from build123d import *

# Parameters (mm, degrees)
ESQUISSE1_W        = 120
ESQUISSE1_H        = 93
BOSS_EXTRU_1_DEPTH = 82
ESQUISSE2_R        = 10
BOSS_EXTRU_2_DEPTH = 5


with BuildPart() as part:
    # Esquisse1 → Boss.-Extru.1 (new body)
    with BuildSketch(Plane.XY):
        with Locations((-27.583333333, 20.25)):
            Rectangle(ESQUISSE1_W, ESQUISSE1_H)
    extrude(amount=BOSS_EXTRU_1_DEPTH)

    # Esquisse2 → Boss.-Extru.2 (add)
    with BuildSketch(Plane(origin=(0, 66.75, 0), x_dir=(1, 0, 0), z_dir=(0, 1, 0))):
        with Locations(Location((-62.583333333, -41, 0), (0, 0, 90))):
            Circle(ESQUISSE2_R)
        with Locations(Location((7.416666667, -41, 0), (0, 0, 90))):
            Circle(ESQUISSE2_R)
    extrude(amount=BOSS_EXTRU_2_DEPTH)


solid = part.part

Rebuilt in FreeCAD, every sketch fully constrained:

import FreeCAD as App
import Part
import Sketcher

V = App.Vector

doc = App.newDocument("Part")
body = doc.addObject("PartDesign::Body", "Body")

sketch1 = body.newObject("Sketcher::SketchObject", "Sketch")
sketch1.AttachmentSupport = (doc.getObject("XY_Plane"), [""])
sketch1.MapMode = "FlatFace"
sketch1.addGeometry(Part.LineSegment(V(-87.583333, 66.75, 0), V(-87.583333, -26.25, 0)), False)
sketch1.addGeometry(Part.LineSegment(V(-87.583333, -26.25, 0), V(32.416667, -26.25, 0)), False)
sketch1.addGeometry(Part.LineSegment(V(32.416667, -26.25, 0), V(32.416667, 66.75, 0)), False)
sketch1.addGeometry(Part.LineSegment(V(32.416667, 66.75, 0), V(-87.583333, 66.75, 0)), False)
sketch1.addConstraint(Sketcher.Constraint("Coincident", 0, 2, 1, 1))
sketch1.addConstraint(Sketcher.Constraint("Coincident", 1, 2, 2, 1))
sketch1.addConstraint(Sketcher.Constraint("Coincident", 2, 2, 3, 1))
sketch1.addConstraint(Sketcher.Constraint("Coincident", 3, 2, 0, 1))
sketch1.addConstraint(Sketcher.Constraint("Vertical", 0))
sketch1.addConstraint(Sketcher.Constraint("Horizontal", 1))
sketch1.addConstraint(Sketcher.Constraint("Vertical", 2))
sketch1.addConstraint(Sketcher.Constraint("Horizontal", 3))
sketch1.addConstraint(Sketcher.Constraint("DistanceX", 1, 1, 1, 2, 120.0))
sketch1.addConstraint(Sketcher.Constraint("DistanceY", 0, 2, 0, 1, 93.0))
sketch1.addConstraint(Sketcher.Constraint("DistanceY", 0, 2, -1, 1, 26.25))
sketch1.addConstraint(Sketcher.Constraint("DistanceX", 0, 2, -1, 1, 87.583333))
pad1 = body.newObject("PartDesign::Pad", "Pad")
pad1.Profile = sketch1
pad1.Length = 82

sketch2 = body.newObject("Sketcher::SketchObject", "Sketch001")
sketch2.AttachmentSupport = (doc.getObject("XZ_Plane"), [""])
sketch2.MapMode = "FlatFace"
sketch2.AttachmentOffset = App.Placement(V(0, 0, -66.75), App.Rotation())
sketch2.addGeometry(Part.Circle(V(-62.583333, 41, 0), V(0, 0, 1), 10), False)
sketch2.addGeometry(Part.Circle(V(7.416667, 41, 0), V(0, 0, 1), 10), False)
sketch2.addConstraint(Sketcher.Constraint("Equal", 0, 1))
sketch2.addConstraint(Sketcher.Constraint("Horizontal", 0, 3, 1, 3))
sketch2.addConstraint(Sketcher.Constraint("Diameter", 0, 20.0))
sketch2.addConstraint(Sketcher.Constraint("DistanceY", -1, 1, 0, 3, 41.0))
sketch2.addConstraint(Sketcher.Constraint("DistanceX", 0, 3, 1, 3, 70.0))
sketch2.addConstraint(Sketcher.Constraint("DistanceX", 0, 3, -1, 1, 62.583333))
pad2 = body.newObject("PartDesign::Pad", "Pad001")
pad2.Profile = sketch2
pad2.Length = 5
pad2.Reversed = True

doc.recompute()
